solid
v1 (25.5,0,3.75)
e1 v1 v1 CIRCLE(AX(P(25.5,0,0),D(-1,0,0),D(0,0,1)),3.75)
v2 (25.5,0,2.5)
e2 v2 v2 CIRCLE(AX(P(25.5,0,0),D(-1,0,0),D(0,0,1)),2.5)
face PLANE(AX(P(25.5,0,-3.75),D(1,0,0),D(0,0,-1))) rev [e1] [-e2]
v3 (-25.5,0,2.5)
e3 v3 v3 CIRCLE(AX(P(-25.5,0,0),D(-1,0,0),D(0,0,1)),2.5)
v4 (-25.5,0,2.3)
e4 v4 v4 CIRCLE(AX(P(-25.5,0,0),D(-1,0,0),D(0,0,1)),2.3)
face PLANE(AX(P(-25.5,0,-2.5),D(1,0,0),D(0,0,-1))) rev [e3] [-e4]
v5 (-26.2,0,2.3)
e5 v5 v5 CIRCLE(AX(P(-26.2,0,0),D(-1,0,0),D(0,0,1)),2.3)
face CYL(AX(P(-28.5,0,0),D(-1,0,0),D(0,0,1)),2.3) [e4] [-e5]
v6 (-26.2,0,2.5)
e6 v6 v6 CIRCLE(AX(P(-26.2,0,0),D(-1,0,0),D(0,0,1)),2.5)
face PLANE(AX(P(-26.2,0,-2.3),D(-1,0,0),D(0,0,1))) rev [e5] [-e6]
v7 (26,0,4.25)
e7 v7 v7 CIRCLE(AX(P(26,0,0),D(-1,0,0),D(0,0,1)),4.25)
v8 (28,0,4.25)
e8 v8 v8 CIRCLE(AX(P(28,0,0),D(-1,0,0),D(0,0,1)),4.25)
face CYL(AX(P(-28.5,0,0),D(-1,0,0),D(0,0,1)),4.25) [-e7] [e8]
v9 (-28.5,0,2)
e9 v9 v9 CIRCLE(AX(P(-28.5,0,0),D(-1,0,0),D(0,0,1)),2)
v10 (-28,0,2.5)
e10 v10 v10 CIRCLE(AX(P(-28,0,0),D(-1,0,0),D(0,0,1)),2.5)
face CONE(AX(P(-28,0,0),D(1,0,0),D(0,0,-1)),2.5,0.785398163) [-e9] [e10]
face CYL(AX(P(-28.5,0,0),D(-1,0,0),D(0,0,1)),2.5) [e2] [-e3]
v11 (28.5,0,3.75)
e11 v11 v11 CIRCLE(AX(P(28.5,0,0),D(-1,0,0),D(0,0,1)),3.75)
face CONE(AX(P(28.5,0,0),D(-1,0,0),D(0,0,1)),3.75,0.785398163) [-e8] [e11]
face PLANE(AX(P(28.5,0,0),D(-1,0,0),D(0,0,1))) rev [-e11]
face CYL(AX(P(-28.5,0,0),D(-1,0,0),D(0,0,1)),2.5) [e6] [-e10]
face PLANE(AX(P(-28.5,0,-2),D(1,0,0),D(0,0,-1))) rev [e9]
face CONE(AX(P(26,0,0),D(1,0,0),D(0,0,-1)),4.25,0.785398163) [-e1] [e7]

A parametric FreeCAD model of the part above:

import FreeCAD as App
import Part
import Sketcher
from FreeCAD import Vector

doc = App.newDocument("Part")
body = doc.addObject("PartDesign::Body", "Body")

# Sketch on XZ plane
sketch1 = body.newObject("Sketcher::SketchObject", "Sketch")
sketch1.AttachmentSupport = (doc.getObject("XZ_Plane"), [""])
sketch1.MapMode = "FlatFace"
sketch1.addGeometry(Part.LineSegment(Vector(-28.5, 0, 0), Vector(28.5, 0, 0)), False)
sketch1.addGeometry(Part.LineSegment(Vector(28.5, 0, 0), Vector(28.5, -3.75, 0)), False)
sketch1.addGeometry(Part.LineSegment(Vector(28.5, -3.75, 0), Vector(28, -4.25, 0)), False)
sketch1.addGeometry(Part.LineSegment(Vector(28, -4.25, 0), Vector(26, -4.25, 0)), False)
sketch1.addGeometry(Part.LineSegment(Vector(26, -4.25, 0), Vector(25.5, -3.75, 0)), False)
sketch1.addGeometry(Part.LineSegment(Vector(25.5, -3.75, 0), Vector(25.5, -2.5, 0)), False)
sketch1.addGeometry(Part.LineSegment(Vector(25.5, -2.5, 0), Vector(-25.5, -2.5, 0)), False)
sketch1.addGeometry(Part.LineSegment(Vector(-25.5, -2.5, 0), Vector(-25.5, -2.3, 0)), False)
sketch1.addGeometry(Part.LineSegment(Vector(-25.5, -2.3, 0), Vector(-26.2, -2.3, 0)), False)
sketch1.addGeometry(Part.LineSegment(Vector(-26.2, -2.3, 0), Vector(-26.2, -2.5, 0)), False)
sketch1.addGeometry(Part.LineSegment(Vector(-26.2, -2.5, 0), Vector(-28, -2.5, 0)), False)
sketch1.addGeometry(Part.LineSegment(Vector(-28, -2.5, 0), Vector(-28.5, -2, 0)), False)
sketch1.addGeometry(Part.LineSegment(Vector(-28.5, -2, 0), Vector(-28.5, 0, 0)), False)
sketch1.addConstraint(Sketcher.Constraint("Coincident", 0, 2, 1, 1))
sketch1.addConstraint(Sketcher.Constraint("Coincident", 1, 2, 2, 1))
sketch1.addConstraint(Sketcher.Constraint("Coincident", 2, 2, 3, 1))
sketch1.addConstraint(Sketcher.Constraint("Coincident", 3, 2, 4, 1))
sketch1.addConstraint(Sketcher.Constraint("Coincident", 4, 2, 5, 1))
sketch1.addConstraint(Sketcher.Constraint("Coincident", 5, 2, 6, 1))
sketch1.addConstraint(Sketcher.Constraint("Coincident", 6, 2, 7, 1))
sketch1.addConstraint(Sketcher.Constraint("Coincident", 7, 2, 8, 1))
sketch1.addConstraint(Sketcher.Constraint("Coincident", 8, 2, 9, 1))
sketch1.addConstraint(Sketcher.Constraint("Coincident", 9, 2, 10, 1))
sketch1.addConstraint(Sketcher.Constraint("Coincident", 10, 2, 11, 1))
sketch1.addConstraint(Sketcher.Constraint("Coincident", 11, 2, 12, 1))
sketch1.addConstraint(Sketcher.Constraint("Coincident", 12, 2, 0, 1))
sketch1.addConstraint(Sketcher.Constraint("Horizontal", 0))
sketch1.addConstraint(Sketcher.Constraint("Vertical", 1))
sketch1.addConstraint(Sketcher.Constraint("Horizontal", 3))
sketch1.addConstraint(Sketcher.Constraint("Vertical", 5))
sketch1.addConstraint(Sketcher.Constraint("Horizontal", 6))
sketch1.addConstraint(Sketcher.Constraint("Vertical", 7))
sketch1.addConstraint(Sketcher.Constraint("Horizontal", 8))
sketch1.addConstraint(Sketcher.Constraint("Vertical", 9))
sketch1.addConstraint(Sketcher.Constraint("Horizontal", 10))
sketch1.addConstraint(Sketcher.Constraint("Vertical", 12))
sketch1.addConstraint(Sketcher.Constraint("Symmetric", 0, 2, 12, 2, -1, 1))
sketch1.addConstraint(Sketcher.Constraint("Perpendicular", 2, 4))
sketch1.addConstraint(Sketcher.Constraint("Parallel", 4, 11))
sketch1.addConstraint(Sketcher.Constraint("Horizontal", 1, 2, 4, 2))
sketch1.addConstraint(Sketcher.Constraint("Horizontal", 6, 2, 9, 2))
sketch1.addConstraint(Sketcher.Constraint("Equal", 3, 12))
sketch1.addConstraint(Sketcher.Constraint("Equal", 2, 4))
sketch1.addConstraint(Sketcher.Constraint("Equal", 4, 11))
sketch1.addConstraint(Sketcher.Constraint("DistanceX", 0, 1, 0, 2, 57.0))
sketch1.addConstraint(Sketcher.Constraint("DistanceX", 3, 2, 3, 1, 2.0))
sketch1.addConstraint(Sketcher.Constraint("DistanceX", 6, 2, 6, 1, 51.0))
sketch1.addConstraint(Sketcher.Constraint("DistanceX", 8, 2, 8, 1, 0.7))
sketch1.addConstraint(Sketcher.Constraint("DistanceX", 10, 2, 10, 1, 1.8))
sketch1.addConstraint(Sketcher.Constraint("DistanceY", 7, 1, 7, 2, 0.2))
sketch1.addConstraint(Sketcher.Constraint("DistanceY", 1, 2, 1, 1, 3.75))
revolution = body.newObject("PartDesign::Revolution", "Revolution")
revolution.Profile = sketch1
revolution.ReferenceAxis = (sketch1, ["H_Axis"])
revolution.Angle = 360

doc.recompute()
